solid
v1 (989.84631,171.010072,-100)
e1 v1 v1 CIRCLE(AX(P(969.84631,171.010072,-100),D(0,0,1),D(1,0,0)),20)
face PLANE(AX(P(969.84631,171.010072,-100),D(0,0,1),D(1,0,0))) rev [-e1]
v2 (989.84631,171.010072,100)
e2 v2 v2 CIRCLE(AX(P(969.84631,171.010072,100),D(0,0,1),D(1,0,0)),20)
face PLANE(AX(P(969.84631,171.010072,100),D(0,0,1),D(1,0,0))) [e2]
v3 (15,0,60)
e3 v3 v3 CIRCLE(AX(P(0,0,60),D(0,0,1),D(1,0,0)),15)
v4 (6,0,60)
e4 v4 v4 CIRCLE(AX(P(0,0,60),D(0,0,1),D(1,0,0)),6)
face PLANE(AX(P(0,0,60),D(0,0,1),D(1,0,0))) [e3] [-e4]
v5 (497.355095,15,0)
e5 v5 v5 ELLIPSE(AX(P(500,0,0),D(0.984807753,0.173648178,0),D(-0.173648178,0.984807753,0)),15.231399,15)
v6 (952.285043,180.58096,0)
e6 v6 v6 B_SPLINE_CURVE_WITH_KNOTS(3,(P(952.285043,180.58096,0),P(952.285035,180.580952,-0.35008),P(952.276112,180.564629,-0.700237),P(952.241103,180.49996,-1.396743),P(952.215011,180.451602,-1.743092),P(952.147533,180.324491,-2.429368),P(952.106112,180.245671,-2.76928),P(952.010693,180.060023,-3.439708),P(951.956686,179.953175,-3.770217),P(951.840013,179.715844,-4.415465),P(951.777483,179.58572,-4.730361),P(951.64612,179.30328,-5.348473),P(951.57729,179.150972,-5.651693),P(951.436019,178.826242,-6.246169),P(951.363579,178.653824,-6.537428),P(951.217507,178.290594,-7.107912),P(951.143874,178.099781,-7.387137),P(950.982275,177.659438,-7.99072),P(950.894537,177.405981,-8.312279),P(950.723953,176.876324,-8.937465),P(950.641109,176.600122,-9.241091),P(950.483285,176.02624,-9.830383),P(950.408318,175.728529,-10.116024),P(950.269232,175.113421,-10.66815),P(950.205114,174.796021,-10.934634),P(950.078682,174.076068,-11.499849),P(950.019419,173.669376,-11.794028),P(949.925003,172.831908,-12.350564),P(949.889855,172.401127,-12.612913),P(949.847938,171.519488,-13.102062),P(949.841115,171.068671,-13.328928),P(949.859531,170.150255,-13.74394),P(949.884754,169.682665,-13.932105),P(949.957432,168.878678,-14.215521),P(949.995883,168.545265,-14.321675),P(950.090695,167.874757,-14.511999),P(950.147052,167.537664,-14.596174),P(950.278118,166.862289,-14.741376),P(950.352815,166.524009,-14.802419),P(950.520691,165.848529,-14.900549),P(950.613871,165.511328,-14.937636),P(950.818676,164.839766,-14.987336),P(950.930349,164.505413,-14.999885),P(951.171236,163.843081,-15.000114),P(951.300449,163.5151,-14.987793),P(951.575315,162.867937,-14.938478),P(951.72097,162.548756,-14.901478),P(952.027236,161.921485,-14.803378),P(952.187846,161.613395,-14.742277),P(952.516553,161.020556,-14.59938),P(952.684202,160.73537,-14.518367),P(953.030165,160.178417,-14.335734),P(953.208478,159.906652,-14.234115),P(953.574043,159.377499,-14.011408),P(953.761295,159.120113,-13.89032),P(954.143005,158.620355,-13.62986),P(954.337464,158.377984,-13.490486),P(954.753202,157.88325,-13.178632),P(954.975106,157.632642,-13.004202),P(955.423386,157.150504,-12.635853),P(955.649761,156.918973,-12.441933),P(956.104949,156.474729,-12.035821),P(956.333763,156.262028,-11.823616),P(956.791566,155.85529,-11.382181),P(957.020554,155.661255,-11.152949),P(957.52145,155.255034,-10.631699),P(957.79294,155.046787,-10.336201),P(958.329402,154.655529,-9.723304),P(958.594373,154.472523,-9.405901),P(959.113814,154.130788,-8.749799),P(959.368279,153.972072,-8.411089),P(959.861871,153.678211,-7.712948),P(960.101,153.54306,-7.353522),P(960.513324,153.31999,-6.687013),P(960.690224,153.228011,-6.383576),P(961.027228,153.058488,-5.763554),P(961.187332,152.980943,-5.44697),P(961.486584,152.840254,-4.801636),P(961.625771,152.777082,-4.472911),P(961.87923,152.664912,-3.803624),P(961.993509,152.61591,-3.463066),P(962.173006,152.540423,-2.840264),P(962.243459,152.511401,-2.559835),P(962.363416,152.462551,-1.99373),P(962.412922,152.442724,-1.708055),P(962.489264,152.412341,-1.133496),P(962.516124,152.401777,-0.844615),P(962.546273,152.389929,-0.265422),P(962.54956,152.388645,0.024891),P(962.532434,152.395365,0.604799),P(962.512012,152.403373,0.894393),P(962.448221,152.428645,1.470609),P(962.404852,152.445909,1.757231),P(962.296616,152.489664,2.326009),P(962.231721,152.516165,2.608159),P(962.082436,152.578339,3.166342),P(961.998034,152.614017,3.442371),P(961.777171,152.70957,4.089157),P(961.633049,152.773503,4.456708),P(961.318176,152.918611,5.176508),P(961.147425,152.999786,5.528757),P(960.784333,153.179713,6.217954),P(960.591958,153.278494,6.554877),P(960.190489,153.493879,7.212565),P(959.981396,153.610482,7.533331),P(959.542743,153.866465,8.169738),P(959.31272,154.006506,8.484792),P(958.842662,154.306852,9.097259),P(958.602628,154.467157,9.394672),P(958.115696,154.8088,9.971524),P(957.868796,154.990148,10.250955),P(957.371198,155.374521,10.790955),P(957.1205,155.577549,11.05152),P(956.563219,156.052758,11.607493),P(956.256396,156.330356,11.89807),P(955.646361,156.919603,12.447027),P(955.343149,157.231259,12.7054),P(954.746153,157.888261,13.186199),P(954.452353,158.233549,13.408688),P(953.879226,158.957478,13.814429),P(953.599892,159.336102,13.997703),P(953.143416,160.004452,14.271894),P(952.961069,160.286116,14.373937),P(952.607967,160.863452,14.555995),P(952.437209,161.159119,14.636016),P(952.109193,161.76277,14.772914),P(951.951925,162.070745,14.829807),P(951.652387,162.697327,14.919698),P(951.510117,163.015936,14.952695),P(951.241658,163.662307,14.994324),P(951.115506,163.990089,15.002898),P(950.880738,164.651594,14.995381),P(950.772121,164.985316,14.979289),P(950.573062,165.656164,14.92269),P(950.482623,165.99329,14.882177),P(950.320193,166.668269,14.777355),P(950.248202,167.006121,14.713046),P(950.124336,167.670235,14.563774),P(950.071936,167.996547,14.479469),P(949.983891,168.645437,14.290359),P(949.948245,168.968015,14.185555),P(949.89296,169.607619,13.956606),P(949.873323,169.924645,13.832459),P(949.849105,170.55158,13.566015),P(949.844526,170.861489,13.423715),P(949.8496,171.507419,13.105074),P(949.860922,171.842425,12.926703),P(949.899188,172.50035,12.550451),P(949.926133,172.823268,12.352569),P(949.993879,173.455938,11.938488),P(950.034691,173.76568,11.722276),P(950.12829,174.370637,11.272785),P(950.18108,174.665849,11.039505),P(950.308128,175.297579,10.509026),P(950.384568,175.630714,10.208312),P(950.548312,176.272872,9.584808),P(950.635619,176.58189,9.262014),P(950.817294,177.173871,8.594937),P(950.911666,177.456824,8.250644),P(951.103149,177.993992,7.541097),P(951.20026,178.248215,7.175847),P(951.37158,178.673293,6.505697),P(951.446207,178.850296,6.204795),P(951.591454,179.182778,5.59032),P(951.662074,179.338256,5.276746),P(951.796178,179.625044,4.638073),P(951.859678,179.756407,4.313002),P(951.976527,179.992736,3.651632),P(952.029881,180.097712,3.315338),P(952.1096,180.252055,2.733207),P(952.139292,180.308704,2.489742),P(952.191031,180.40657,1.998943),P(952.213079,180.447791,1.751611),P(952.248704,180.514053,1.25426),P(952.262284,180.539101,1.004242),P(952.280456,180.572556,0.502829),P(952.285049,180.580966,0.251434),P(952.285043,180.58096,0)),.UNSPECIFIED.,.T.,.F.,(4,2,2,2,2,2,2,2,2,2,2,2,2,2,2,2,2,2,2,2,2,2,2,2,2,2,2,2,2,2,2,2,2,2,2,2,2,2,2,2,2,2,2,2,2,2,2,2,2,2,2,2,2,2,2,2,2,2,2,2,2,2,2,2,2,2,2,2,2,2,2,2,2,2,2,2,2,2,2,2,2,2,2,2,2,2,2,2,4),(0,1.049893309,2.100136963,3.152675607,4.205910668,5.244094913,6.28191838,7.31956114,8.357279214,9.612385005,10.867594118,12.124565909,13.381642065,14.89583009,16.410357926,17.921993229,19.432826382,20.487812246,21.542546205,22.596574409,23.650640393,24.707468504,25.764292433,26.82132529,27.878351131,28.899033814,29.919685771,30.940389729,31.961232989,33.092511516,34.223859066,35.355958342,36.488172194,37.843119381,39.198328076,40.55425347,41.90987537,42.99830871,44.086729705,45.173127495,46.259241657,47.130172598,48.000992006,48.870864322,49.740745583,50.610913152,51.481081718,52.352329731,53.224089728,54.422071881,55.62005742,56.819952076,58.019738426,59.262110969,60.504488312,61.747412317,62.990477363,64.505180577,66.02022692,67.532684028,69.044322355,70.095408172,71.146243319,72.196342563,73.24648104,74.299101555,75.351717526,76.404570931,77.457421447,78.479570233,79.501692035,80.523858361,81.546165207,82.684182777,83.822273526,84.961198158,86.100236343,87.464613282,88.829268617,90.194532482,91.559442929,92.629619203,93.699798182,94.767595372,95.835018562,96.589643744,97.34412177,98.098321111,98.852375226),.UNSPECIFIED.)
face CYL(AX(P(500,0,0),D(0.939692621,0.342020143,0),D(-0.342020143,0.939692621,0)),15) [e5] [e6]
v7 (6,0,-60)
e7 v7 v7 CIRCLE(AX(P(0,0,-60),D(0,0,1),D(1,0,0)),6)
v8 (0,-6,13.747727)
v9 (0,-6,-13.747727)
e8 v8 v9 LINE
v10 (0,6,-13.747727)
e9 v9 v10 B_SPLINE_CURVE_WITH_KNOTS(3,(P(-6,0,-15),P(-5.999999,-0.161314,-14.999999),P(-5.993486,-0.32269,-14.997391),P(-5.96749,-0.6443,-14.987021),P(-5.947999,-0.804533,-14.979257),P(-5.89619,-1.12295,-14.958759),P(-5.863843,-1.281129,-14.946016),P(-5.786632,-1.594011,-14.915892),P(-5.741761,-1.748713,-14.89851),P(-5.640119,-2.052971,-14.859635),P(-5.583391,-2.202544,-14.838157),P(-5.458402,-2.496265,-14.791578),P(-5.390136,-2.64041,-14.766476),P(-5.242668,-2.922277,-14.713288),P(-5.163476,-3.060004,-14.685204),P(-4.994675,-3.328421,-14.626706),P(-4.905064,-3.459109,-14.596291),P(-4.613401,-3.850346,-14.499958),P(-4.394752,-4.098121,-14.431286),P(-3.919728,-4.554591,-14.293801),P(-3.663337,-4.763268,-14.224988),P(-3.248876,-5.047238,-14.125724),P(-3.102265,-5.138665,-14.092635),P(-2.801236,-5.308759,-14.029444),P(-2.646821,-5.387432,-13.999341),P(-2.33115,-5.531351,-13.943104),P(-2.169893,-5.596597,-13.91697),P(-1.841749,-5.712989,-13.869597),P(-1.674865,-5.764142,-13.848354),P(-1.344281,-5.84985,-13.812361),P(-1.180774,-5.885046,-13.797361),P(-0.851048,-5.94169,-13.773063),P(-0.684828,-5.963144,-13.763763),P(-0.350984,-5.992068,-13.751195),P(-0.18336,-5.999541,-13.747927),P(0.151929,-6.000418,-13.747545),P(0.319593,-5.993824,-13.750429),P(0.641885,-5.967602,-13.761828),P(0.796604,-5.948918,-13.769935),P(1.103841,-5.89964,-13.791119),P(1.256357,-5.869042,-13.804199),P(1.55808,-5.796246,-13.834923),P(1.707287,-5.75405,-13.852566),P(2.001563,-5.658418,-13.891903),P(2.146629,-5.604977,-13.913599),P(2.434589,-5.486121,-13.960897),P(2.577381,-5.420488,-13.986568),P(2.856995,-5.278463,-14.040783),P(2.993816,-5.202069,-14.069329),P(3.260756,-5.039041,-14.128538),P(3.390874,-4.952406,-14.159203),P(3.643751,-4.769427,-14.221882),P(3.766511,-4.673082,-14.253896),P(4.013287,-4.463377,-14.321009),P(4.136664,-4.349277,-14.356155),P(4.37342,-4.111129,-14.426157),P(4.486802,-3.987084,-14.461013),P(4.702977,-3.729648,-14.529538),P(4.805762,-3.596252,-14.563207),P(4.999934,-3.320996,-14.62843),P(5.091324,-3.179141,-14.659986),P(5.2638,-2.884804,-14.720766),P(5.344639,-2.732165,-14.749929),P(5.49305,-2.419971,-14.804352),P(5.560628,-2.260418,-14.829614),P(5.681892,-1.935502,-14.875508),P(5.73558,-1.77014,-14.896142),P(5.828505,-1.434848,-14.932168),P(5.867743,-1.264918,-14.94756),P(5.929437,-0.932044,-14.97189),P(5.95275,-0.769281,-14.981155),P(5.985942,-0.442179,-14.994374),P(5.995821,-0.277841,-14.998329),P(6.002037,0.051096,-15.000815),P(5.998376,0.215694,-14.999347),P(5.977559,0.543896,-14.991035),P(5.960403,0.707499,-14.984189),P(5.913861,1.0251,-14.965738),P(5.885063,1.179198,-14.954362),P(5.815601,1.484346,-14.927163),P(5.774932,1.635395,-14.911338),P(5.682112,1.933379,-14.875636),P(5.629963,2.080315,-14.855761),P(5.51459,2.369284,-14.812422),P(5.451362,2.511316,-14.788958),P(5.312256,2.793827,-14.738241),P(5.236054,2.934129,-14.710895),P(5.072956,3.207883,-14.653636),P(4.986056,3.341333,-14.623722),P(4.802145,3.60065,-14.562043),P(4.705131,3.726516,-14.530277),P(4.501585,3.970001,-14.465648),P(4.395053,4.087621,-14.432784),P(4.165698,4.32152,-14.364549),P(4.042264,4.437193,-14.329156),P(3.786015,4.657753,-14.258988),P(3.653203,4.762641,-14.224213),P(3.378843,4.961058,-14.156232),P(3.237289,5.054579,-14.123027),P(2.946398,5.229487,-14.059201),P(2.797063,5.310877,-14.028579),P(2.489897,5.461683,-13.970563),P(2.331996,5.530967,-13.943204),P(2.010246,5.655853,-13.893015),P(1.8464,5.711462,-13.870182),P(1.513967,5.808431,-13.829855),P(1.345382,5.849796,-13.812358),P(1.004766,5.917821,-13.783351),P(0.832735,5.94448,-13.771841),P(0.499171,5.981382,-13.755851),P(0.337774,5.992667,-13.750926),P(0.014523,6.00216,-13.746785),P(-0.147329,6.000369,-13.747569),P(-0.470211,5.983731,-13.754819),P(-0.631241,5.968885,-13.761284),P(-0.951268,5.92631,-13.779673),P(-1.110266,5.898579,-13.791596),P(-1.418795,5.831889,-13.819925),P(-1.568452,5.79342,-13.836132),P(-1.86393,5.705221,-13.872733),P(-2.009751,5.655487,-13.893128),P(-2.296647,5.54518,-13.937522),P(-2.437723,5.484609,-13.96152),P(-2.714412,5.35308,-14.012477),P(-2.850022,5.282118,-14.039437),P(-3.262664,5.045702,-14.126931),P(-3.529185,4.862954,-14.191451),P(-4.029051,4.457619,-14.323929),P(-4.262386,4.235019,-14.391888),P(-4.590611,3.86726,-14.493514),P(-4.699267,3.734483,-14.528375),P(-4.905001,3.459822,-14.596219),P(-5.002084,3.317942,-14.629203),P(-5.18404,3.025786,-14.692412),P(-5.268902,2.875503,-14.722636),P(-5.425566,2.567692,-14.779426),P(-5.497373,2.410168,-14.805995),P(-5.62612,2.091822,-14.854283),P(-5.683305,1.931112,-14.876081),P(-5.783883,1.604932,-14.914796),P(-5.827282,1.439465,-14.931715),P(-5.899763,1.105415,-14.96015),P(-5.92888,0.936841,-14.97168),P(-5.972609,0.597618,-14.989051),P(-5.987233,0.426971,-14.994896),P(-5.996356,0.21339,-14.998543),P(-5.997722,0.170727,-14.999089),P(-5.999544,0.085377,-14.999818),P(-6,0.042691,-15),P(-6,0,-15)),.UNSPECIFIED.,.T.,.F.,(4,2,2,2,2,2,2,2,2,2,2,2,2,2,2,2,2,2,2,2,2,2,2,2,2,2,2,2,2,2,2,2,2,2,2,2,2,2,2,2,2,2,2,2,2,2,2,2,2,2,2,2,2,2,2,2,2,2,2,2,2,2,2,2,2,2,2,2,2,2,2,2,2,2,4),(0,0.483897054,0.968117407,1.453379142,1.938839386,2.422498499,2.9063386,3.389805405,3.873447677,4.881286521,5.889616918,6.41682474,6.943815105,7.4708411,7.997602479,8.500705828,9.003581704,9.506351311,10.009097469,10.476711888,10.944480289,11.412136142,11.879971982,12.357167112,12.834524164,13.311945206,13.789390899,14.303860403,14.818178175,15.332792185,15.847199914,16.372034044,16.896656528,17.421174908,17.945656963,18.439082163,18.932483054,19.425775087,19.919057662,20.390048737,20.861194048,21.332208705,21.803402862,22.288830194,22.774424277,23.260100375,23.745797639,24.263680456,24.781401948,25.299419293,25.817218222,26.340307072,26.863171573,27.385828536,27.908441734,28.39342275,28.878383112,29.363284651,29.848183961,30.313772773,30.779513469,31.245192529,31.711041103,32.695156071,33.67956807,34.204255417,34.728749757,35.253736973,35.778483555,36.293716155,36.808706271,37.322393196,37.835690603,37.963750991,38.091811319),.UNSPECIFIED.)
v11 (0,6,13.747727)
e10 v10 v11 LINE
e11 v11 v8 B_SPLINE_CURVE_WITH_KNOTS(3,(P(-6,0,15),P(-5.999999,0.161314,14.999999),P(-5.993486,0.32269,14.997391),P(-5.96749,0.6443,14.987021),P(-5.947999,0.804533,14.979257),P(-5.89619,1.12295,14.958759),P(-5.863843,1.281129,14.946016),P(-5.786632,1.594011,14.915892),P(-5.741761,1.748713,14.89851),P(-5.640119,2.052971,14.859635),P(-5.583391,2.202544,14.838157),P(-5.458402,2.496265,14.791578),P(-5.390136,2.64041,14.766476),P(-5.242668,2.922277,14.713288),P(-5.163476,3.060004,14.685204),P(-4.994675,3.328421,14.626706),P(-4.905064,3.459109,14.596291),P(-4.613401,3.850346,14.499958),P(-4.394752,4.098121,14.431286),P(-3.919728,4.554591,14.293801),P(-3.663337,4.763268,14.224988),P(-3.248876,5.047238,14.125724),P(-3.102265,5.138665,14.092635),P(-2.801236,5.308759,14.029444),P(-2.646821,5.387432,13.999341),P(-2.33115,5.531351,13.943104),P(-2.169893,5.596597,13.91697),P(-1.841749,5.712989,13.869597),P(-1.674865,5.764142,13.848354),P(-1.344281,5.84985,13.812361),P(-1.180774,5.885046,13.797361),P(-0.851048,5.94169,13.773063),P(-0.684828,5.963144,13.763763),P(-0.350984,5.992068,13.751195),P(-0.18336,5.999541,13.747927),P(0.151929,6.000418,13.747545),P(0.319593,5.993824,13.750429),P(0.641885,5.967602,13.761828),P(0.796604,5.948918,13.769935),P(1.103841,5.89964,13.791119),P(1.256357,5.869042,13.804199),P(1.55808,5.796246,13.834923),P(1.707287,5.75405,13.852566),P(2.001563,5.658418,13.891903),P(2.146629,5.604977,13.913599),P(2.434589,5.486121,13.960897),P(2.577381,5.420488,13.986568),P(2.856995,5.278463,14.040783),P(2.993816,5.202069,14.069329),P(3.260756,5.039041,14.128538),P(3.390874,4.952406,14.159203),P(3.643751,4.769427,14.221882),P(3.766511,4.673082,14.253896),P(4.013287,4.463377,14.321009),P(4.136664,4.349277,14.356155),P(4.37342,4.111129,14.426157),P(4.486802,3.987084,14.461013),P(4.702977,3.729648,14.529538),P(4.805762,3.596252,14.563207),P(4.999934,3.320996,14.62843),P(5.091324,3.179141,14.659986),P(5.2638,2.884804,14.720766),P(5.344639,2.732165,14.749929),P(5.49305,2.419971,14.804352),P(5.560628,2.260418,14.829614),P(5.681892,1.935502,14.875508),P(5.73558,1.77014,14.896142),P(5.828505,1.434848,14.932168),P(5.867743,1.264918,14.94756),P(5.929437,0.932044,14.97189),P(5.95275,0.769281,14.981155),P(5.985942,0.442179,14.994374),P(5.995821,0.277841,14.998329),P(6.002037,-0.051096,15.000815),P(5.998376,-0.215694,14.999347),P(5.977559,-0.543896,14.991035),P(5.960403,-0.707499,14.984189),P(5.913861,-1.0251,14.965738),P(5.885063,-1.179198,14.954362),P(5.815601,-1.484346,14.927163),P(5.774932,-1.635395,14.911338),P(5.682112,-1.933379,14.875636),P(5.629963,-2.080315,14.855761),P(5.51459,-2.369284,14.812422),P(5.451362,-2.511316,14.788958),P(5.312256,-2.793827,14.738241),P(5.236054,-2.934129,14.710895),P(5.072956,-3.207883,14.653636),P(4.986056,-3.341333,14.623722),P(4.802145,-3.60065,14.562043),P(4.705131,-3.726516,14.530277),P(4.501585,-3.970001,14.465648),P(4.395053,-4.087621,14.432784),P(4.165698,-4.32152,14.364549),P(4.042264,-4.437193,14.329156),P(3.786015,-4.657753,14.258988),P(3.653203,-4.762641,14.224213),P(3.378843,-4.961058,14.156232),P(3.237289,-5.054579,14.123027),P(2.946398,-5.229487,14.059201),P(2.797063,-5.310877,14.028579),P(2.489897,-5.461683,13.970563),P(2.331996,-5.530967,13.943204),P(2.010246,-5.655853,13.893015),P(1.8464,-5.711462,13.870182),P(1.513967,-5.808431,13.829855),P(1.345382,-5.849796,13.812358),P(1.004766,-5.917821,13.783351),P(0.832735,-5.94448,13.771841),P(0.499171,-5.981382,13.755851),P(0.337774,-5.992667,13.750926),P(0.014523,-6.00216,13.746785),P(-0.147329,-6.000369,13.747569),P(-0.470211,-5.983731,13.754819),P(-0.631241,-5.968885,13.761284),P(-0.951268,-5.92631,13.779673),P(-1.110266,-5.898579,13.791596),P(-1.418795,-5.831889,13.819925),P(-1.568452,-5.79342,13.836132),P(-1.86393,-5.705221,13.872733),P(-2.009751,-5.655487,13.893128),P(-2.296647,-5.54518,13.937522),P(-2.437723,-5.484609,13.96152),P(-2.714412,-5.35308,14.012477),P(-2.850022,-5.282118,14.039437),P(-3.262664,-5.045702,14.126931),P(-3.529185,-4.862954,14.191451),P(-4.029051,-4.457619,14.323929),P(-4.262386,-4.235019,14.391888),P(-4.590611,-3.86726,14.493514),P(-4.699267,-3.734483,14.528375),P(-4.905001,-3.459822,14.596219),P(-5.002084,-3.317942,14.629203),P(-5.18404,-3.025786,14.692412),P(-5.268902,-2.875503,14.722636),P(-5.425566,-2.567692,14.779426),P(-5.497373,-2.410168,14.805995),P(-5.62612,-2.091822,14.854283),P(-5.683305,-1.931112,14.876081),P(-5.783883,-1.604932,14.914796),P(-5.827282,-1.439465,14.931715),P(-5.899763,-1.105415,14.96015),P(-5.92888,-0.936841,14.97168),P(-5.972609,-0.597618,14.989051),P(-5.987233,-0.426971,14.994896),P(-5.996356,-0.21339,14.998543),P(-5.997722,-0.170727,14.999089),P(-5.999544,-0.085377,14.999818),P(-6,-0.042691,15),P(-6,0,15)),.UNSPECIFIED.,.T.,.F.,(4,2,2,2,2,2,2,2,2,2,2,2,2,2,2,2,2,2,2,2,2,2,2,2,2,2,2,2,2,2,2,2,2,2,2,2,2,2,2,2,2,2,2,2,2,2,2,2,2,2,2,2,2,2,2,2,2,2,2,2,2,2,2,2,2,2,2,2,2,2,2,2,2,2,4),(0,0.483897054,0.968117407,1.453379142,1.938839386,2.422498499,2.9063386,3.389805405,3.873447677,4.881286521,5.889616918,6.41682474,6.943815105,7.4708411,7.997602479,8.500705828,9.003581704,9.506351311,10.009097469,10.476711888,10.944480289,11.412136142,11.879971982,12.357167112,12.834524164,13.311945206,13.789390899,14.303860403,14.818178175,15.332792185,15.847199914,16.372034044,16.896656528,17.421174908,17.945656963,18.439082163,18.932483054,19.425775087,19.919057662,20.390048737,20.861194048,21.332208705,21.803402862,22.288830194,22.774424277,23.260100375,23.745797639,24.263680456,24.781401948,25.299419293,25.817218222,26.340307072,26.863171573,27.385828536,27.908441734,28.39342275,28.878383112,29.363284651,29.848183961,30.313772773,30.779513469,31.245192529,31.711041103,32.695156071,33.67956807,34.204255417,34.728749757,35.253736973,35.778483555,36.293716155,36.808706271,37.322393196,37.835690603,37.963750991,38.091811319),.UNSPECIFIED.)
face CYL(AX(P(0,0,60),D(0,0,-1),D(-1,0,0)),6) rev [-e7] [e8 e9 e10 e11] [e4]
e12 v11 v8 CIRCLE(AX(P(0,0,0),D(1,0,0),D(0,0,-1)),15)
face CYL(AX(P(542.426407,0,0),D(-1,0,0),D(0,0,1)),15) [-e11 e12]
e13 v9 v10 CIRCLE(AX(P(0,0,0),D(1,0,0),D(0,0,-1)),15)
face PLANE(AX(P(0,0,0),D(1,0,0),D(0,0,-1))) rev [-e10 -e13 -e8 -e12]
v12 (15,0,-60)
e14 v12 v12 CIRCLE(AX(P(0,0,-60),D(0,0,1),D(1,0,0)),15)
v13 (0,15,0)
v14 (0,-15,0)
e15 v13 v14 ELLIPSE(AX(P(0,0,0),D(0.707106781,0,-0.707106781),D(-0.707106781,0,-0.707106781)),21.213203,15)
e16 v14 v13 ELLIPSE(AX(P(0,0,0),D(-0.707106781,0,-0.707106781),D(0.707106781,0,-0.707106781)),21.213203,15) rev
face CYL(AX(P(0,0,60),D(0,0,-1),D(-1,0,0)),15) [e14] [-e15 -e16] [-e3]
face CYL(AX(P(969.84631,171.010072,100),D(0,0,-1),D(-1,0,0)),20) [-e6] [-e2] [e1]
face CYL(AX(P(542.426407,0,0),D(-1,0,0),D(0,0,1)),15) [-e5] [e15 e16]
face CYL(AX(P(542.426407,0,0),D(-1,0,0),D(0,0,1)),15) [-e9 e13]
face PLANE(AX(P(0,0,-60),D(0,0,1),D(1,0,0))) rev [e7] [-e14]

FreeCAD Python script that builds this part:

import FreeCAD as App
import Part
import Sketcher

V = App.Vector
Q = App.Units.Quantity

doc = App.newDocument("Part")
body = doc.addObject("PartDesign::Body", "Body")

sketch1 = body.newObject("Sketcher::SketchObject", "Sketch")
sketch1.AttachmentSupport = (doc.getObject("XY_Plane"), [""])
sketch1.MapMode = "FlatFace"
sketch1.addGeometry(Part.Circle(V(0, 0, 0), V(0, 0, 1), 15), False)
sketch1.addGeometry(Part.Circle(V(0, 0, 0), V(0, 0, 1), 6), False)
sketch1.addConstraint(Sketcher.Constraint("Coincident", 0, 3, -1, 1))
sketch1.addConstraint(Sketcher.Constraint("Coincident", 1, 3, -1, 1))
sketch1.addConstraint(Sketcher.Constraint("Diameter", 0, Q("30 mm")))
sketch1.addConstraint(Sketcher.Constraint("Diameter", 1, Q("12 mm")))
pad1 = body.newObject("PartDesign::Pad", "Pad")
pad1.Profile = sketch1
pad1.Length = 120
pad1.Midplane = True

sketch2 = body.newObject("Sketcher::SketchObject", "Sketch001")
sketch2.AttachmentSupport = (doc.getObject("YZ_Plane"), [""])
sketch2.MapMode = "FlatFace"
sketch2.addGeometry(Part.Circle(V(0, 0, 0), V(0, 0, 1), 15), False)
sketch2.addConstraint(Sketcher.Constraint("Coincident", 0, 3, -1, 1))
sketch2.addConstraint(Sketcher.Constraint("Diameter", 0, Q("30 mm")))

sketch3 = body.newObject("Sketcher::SketchObject", "Sketch002")
sketch3.AttachmentSupport = (doc.getObject("XY_Plane"), [""])
sketch3.MapMode = "FlatFace"
sketch3.addGeometry(Part.LineSegment(V(0, 0, 0), V(500, 0, 0)), False)
sketch3.addGeometry(Part.LineSegment(V(500, 0, 0), V(970, 171, 0)), False)
sketch3.addConstraint(Sketcher.Constraint("Coincident", 0, 2, 1, 1))
sketch3.addConstraint(Sketcher.Constraint("Horizontal", 0))
sketch3.addConstraint(Sketcher.Constraint("Coincident", 0, 1, -1, 1))
sketch3.addConstraint(Sketcher.Constraint("DistanceX", 0, 1, 0, 2, Q("500 mm")))
sketch3.addConstraint(Sketcher.Constraint("Angle", 1, Q("20 deg")))
sketch3.addConstraint(Sketcher.Constraint("Distance", 1, Q("500 mm")))
doc.recompute()

additivepipe = body.newObject("PartDesign::AdditivePipe", "AdditivePipe")
additivepipe.Profile = sketch2
additivepipe.Spine = (sketch3, ["Edge1", "Edge2"])
additivepipe.Transition = "Right corner"

sketch4 = body.newObject("Sketcher::SketchObject", "Sketch003")
sketch4.AttachmentSupport = (doc.getObject("XY_Plane"), [""])
sketch4.MapMode = "FlatFace"
sketch4.addGeometry(Part.Circle(V(970, 171, 0), V(0, 0, 1), 20), False)
sketch4.addConstraint(Sketcher.Constraint("Diameter", 0, Q("40 mm")))
sketch4.addConstraint(Sketcher.Constraint("DistanceX", -1, 1, 0, 3, Q("969.84631 mm")))
sketch4.addConstraint(Sketcher.Constraint("DistanceY", -1, 1, 0, 3, Q("171.010072 mm")))
pad2 = body.newObject("PartDesign::Pad", "Pad001")
pad2.Profile = sketch4
pad2.Length = 200
pad2.Midplane = True

doc.recompute()
